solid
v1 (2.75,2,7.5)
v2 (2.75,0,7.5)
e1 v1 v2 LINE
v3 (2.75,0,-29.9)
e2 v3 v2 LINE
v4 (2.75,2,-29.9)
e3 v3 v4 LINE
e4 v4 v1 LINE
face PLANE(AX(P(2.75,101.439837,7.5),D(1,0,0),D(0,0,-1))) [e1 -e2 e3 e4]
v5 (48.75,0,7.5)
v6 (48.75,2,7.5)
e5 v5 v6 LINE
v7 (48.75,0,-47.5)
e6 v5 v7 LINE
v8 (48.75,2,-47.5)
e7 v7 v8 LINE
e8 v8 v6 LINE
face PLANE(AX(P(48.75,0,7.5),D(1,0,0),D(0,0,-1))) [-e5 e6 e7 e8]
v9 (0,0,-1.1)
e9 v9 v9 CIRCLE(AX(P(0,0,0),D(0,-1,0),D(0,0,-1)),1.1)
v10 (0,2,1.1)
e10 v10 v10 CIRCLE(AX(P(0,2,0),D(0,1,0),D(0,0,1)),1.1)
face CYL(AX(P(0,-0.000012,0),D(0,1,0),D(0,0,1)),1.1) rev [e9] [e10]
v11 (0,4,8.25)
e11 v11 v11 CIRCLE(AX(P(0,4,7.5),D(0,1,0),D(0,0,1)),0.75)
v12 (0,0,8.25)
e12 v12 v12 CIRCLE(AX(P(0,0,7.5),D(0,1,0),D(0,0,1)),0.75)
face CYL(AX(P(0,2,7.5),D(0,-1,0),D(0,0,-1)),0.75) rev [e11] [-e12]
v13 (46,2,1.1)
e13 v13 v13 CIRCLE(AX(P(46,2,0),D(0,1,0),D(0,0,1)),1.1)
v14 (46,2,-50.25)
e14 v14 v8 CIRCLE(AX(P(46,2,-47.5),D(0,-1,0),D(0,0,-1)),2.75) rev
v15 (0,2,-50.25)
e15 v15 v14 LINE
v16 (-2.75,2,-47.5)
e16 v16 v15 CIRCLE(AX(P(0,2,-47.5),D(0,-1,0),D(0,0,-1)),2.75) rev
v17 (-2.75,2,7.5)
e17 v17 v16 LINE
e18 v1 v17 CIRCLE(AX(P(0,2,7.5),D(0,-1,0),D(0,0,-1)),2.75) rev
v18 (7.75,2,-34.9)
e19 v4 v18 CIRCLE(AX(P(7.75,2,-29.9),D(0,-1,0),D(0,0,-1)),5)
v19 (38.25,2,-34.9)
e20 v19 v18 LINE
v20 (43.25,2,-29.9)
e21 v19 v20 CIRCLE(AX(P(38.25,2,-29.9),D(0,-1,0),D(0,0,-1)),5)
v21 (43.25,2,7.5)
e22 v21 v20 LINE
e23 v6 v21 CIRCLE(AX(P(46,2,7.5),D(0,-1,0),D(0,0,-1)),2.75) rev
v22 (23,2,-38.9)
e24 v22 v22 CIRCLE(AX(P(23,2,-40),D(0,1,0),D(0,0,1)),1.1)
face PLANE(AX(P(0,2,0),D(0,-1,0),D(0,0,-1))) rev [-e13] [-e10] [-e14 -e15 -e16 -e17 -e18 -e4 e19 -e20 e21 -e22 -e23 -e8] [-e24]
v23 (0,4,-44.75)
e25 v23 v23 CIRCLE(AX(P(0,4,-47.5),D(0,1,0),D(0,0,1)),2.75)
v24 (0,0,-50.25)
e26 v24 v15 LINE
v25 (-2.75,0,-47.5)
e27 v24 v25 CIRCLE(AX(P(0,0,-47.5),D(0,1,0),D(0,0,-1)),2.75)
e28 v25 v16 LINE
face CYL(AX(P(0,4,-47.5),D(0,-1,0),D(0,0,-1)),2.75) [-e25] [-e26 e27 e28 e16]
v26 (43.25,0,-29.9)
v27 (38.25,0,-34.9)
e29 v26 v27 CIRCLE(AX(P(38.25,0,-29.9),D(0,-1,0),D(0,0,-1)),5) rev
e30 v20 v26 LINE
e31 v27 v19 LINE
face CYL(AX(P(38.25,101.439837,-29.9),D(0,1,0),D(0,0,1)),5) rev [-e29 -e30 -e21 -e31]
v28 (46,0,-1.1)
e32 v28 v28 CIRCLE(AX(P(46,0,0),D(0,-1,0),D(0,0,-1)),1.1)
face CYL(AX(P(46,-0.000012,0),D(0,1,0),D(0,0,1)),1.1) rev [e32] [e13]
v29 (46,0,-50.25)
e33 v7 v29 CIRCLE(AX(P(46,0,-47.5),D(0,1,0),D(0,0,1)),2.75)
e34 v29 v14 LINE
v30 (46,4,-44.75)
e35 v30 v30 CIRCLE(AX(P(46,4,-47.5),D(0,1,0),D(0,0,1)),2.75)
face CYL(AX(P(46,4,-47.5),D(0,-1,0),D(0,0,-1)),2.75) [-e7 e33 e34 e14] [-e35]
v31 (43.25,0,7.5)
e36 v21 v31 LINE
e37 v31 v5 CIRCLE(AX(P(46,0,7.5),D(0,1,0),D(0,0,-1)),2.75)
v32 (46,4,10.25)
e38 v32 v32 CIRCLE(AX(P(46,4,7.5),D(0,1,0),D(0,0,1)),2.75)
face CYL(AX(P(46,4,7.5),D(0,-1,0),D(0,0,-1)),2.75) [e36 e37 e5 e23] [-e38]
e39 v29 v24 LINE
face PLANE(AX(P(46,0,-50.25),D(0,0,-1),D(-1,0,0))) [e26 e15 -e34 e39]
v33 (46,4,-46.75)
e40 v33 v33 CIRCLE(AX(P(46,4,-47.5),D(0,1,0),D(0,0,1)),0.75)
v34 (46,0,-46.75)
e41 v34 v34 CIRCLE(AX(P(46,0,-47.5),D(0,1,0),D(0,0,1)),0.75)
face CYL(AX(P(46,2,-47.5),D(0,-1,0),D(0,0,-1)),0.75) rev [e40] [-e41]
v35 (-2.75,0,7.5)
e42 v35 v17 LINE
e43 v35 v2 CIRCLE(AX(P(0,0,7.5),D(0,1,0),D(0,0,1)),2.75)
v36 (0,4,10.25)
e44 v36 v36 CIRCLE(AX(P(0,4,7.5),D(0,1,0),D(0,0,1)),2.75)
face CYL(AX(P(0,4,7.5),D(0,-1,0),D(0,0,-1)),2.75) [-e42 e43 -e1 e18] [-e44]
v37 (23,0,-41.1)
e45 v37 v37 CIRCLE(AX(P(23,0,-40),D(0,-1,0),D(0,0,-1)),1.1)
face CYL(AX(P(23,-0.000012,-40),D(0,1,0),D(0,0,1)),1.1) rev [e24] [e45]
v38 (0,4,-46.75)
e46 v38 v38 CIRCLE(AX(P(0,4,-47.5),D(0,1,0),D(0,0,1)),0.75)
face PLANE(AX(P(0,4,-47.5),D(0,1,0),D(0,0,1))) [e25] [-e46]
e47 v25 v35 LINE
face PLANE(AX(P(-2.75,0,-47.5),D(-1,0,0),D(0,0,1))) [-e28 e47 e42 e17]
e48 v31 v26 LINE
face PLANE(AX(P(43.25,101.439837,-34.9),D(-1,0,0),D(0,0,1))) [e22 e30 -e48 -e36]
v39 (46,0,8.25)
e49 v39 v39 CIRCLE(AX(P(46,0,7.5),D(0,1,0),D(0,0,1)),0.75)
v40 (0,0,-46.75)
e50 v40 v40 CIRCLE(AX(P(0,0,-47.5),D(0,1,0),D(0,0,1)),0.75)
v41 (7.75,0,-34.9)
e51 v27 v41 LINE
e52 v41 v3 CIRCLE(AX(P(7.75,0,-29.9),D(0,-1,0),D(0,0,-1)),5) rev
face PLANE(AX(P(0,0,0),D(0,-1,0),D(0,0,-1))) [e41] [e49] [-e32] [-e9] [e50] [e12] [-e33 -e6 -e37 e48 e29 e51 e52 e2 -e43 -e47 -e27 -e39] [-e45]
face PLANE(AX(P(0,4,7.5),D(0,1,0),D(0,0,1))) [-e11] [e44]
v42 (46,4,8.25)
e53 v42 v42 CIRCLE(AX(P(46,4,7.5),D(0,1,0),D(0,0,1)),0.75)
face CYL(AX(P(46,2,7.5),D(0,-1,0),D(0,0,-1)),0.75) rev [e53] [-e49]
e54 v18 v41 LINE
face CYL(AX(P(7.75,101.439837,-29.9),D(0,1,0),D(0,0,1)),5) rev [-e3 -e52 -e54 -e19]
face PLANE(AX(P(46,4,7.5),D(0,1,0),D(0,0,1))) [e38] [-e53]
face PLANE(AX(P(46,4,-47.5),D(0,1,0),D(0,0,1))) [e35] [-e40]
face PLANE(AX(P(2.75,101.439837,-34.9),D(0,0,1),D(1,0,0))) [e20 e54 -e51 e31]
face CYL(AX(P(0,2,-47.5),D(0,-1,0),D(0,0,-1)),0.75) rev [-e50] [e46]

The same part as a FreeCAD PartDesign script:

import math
import FreeCAD as App
import Part
import Sketcher
from FreeCAD import Vector
Q = App.Units.Quantity


def edges_at(feature, points):
    """Names of the edges that pass closest to the given points."""
    edges = feature.Shape.Edges
    near = lambda p: min(range(len(edges)), key=lambda i: edges[i].distToShape(Part.Vertex(*p))[0])
    return sorted({f"Edge{near(p) + 1}" for p in points})


def add_polygon(sketch, points):
    """Adds a closed chain of lines whose ends are joined by coincident constraints."""
    first, n = sketch.GeometryCount, len(points)
    for a, b in zip(points, points[1:] + points[:1]):
        sketch.addGeometry(Part.LineSegment(App.Vector(*a, 0), App.Vector(*b, 0)), False)
    for i in range(n):
        sketch.addConstraint(Sketcher.Constraint("Coincident", first + i, 2, first + (i + 1) % n, 1))

doc = App.newDocument("Part")
body = doc.addObject("PartDesign::Body", "Body")

# Sketch on XZ plane
sketch1 = body.newObject("Sketcher::SketchObject", "Sketch")
sketch1.AttachmentSupport = (doc.getObject("XZ_Plane"), [""])
sketch1.MapMode = "FlatFace"
add_polygon(sketch1, [(-4, -51.5), (-4, 11.5), (50, 11.5), (50, -51.5)])  # lines 0-3
sketch1.addGeometry(Part.Circle(Vector(0, 7.5, 0), Vector(0, 0, 1), 0.8), False)  # 4
sketch1.addGeometry(Part.Circle(Vector(46, 7.5, 0), Vector(0, 0, 1), 0.8), False)  # 5
sketch1.addGeometry(Part.Circle(Vector(0, -47.5, 0), Vector(0, 0, 1), 0.8), False)  # 6
sketch1.addGeometry(Part.Circle(Vector(46, -47.5, 0), Vector(0, 0, 1), 0.8), False)  # 7
sketch1.addConstraint([
    Sketcher.Constraint("Vertical", 0),
    Sketcher.Constraint("Horizontal", 1),
    Sketcher.Constraint("Vertical", 2),
    Sketcher.Constraint("Horizontal", 3),
    Sketcher.Constraint("Equal", 4, 5),
    Sketcher.Constraint("Equal", 5, 6),
    Sketcher.Constraint("Equal", 6, 7),
    Sketcher.Constraint("PointOnObject", 4, 3, -2),
    Sketcher.Constraint("PointOnObject", 6, 3, -2),
    Sketcher.Constraint("Horizontal", 4, 3, 5, 3),
    Sketcher.Constraint("Horizontal", 6, 3, 7, 3),
    Sketcher.Constraint("Vertical", 5, 3, 7, 3),
    Sketcher.Constraint("Diameter", 4, Q("1.5 mm")),
    Sketcher.Constraint("DistanceX", 1, 1, 1, 2, Q("54 mm")),
    Sketcher.Constraint("DistanceY", 0, 1, 0, 2, Q("63 mm")),
    Sketcher.Constraint("DistanceX", -1, 1, 5, 3, Q("46 mm")),
    Sketcher.Constraint("DistanceX", 0, 2, -1, 1, Q("4 mm")),
    Sketcher.Constraint("DistanceY", 6, 3, 4, 3, Q("55 mm")),
    Sketcher.Constraint("DistanceY", 4, 3, 0, 2, Q("4 mm")),
    Sketcher.Constraint("DistanceY", -1, 1, 4, 3, Q("7.5 mm")),
])
pad1 = body.newObject("PartDesign::Pad", "Pad")
pad1.Profile = sketch1
pad1.Length = 2
pad1.Reversed = True

# Sketch on XZ plane
sketch2 = body.newObject("Sketcher::SketchObject", "Sketch001")
sketch2.AttachmentSupport = (doc.getObject("XZ_Plane"), [""])
sketch2.MapMode = "FlatFace"
sketch2.addGeometry([
    Part.Circle(Vector(0, 0, 0), Vector(0, 0, 1), 1.1),
    Part.Circle(Vector(46, 0, 0), Vector(0, 0, 1), 1.1),
    Part.Circle(Vector(23, -40, 0), Vector(0, 0, 1), 1.1),
], False)
sketch2.addConstraint([
    Sketcher.Constraint("Coincident", 0, 3, -1, 1),
    Sketcher.Constraint("Equal", 0, 1),
    Sketcher.Constraint("Equal", 1, 2),
    Sketcher.Constraint("PointOnObject", 1, 3, -1),
    Sketcher.Constraint("Diameter", 0, Q("2.2 mm")),
    Sketcher.Constraint("DistanceX", -1, 1, 1, 3, Q("46 mm")),
    Sketcher.Constraint("DistanceX", -1, 1, 2, 3, Q("23 mm")),
    Sketcher.Constraint("DistanceY", 2, 3, -1, 1, Q("40 mm")),
])
pocket1 = body.newObject("PartDesign::Pocket", "Pocket")
pocket1.Profile = sketch2
pocket1.Type = "ThroughAll"
pocket1.Midplane = True

# Sketch on XZ plane
sketch3 = body.newObject("Sketcher::SketchObject", "Sketch002")
sketch3.AttachmentSupport = (doc.getObject("XZ_Plane"), [""])
sketch3.MapMode = "FlatFace"
sketch3.AttachmentOffset = App.Placement(Vector(0, 0, -2), App.Rotation())
sketch3.addGeometry([
    Part.Circle(Vector(0, 7.5, 0), Vector(0, 0, 1), 2.8),  # 0
    Part.Circle(Vector(0, 7.5, 0), Vector(0, 0, 1), 0.8),  # 1
    Part.Circle(Vector(46, 7.5, 0), Vector(0, 0, 1), 2.8),  # 2
    Part.Circle(Vector(46, 7.5, 0), Vector(0, 0, 1), 0.8),  # 3
    Part.Circle(Vector(46, -47.5, 0), Vector(0, 0, 1), 2.8),  # 4
    Part.Circle(Vector(46, -47.5, 0), Vector(0, 0, 1), 0.8),  # 5
    Part.Circle(Vector(0, -47.5, 0), Vector(0, 0, 1), 2.8),  # 6
    Part.Circle(Vector(0, -47.5, 0), Vector(0, 0, 1), 0.8),  # 7
], False)
sketch3.addConstraint([
    Sketcher.Constraint("Coincident", 1, 3, 0, 3),
    Sketcher.Constraint("Coincident", 3, 3, 2, 3),
    Sketcher.Constraint("Coincident", 5, 3, 4, 3),
    Sketcher.Constraint("Coincident", 7, 3, 6, 3),
    Sketcher.Constraint("Equal", 0, 2),
    Sketcher.Constraint("Equal", 1, 3),
    Sketcher.Constraint("Equal", 2, 4),
    Sketcher.Constraint("Equal", 3, 5),
    Sketcher.Constraint("Equal", 4, 6),
    Sketcher.Constraint("Equal", 5, 7),
    Sketcher.Constraint("PointOnObject", 0, 3, -2),
    Sketcher.Constraint("PointOnObject", 6, 3, -2),
    Sketcher.Constraint("Horizontal", 1, 3, 2, 3),
    Sketcher.Constraint("Horizontal", 5, 3, 6, 3),
    Sketcher.Constraint("Vertical", 3, 3, 4, 3),
    Sketcher.Constraint("Diameter", 0, Q("5.5 mm")),
    Sketcher.Constraint("Diameter", 1, Q("1.5 mm")),
    Sketcher.Constraint("DistanceX", -1, 1, 2, 3, Q("46 mm")),
    Sketcher.Constraint("DistanceY", 4, 3, 2, 3, Q("55 mm")),
    Sketcher.Constraint("DistanceY", -1, 1, 0, 3, Q("7.5 mm")),
])
pad2 = body.newObject("PartDesign::Pad", "Pad001")
pad2.Profile = sketch3
pad2.Length = 2
pad2.Reversed = True

# Sketch on XZ plane
sketch4 = body.newObject("Sketcher::SketchObject", "Sketch003")
sketch4.AttachmentSupport = (doc.getObject("XZ_Plane"), [""])
sketch4.MapMode = "FlatFace"
sketch4.AttachmentOffset = App.Placement(Vector(0, 0, -2), App.Rotation())
add_polygon(sketch4, [(-13.3, -60.8), (-13.3, 20.8), (59.3, 20.8), (59.3, -60.8)])  # lines 0-3
sketch4.addGeometry(Part.LineSegment(Vector(46, 10.2, 0), Vector(0, 10.2, 0)), False)  # 4
sketch4.addGeometry(Part.ArcOfCircle(Part.Circle(Vector(0, 7.5, 0), Vector(0, 0, 1), 2.8), math.radians(90), math.radians(180)), False)  # 5
sketch4.addGeometry(Part.LineSegment(Vector(-2.8, 7.5, 0), Vector(-2.8, -47.5, 0)), False)  # 6
sketch4.addGeometry(Part.ArcOfCircle(Part.Circle(Vector(0, -47.5, 0), Vector(0, 0, 1), 2.8), math.radians(-180), math.radians(-90)), False)  # 7
sketch4.addGeometry(Part.LineSegment(Vector(0, -50.2, 0), Vector(46, -50.2, 0)), False)  # 8
sketch4.addGeometry(Part.ArcOfCircle(Part.Circle(Vector(46, -47.5, 0), Vector(0, 0, 1), 2.8), math.radians(-90), math.radians(0)), False)  # 9
sketch4.addGeometry(Part.LineSegment(Vector(48.8, -47.5, 0), Vector(48.8, 7.5, 0)), False)  # 10
sketch4.addGeometry(Part.ArcOfCircle(Part.Circle(Vector(46, 7.5, 0), Vector(0, 0, 1), 2.8), math.radians(0), math.radians(90)), False)  # 11
sketch4.addConstraint([
    Sketcher.Constraint("Tangent", 4, 2, 5, 1),
    Sketcher.Constraint("Tangent", 5, 2, 6, 1),
    Sketcher.Constraint("Tangent", 6, 2, 7, 1),
    Sketcher.Constraint("Tangent", 7, 2, 8, 1),
    Sketcher.Constraint("Tangent", 8, 2, 9, 1),
    Sketcher.Constraint("Tangent", 9, 2, 10, 1),
    Sketcher.Constraint("Tangent", 10, 2, 11, 1),
    Sketcher.Constraint("Tangent", 11, 2, 4, 1),
    Sketcher.Constraint("Vertical", 0),
    Sketcher.Constraint("Horizontal", 1),
    Sketcher.Constraint("Vertical", 2),
    Sketcher.Constraint("Horizontal", 3),
    Sketcher.Constraint("Horizontal", 4),
    Sketcher.Constraint("Vertical", 6),
    Sketcher.Constraint("Horizontal", 8),
    Sketcher.Constraint("Vertical", 10),
    Sketcher.Constraint("Equal", 5, 7),
    Sketcher.Constraint("Equal", 7, 9),
    Sketcher.Constraint("Equal", 9, 11),
    Sketcher.Constraint("PointOnObject", 5, 3, -2),
    Sketcher.Constraint("DistanceX", 4, 2, 4, 1, Q("46 mm")),
    Sketcher.Constraint("DistanceY", 6, 2, 6, 1, Q("55 mm")),
    Sketcher.Constraint("Radius", 5, Q("2.75 mm")),
    Sketcher.Constraint("DistanceY", -1, 1, 5, 3, Q("7.5 mm")),
    Sketcher.Constraint("DistanceX", 1, 1, 1, 2, Q("72.614 mm")),
    Sketcher.Constraint("DistanceY", 0, 1, 0, 2, Q("81.614 mm")),
    Sketcher.Constraint("DistanceX", 0, 2, -1, 1, Q("13.307 mm")),
    Sketcher.Constraint("DistanceY", -1, 1, 0, 2, Q("20.807 mm")),
])
pocket2 = body.newObject("PartDesign::Pocket", "Pocket001")
pocket2.Profile = sketch4
pocket2.Type = "ThroughAll"
pocket2.Midplane = True

# Sketch on XZ plane
sketch5 = body.newObject("Sketcher::SketchObject", "Sketch004")
sketch5.AttachmentSupport = (doc.getObject("XZ_Plane"), [""])
sketch5.MapMode = "FlatFace"
sketch5.AttachmentOffset = App.Placement(Vector(0, 0, -2), App.Rotation())
sketch5.addGeometry([
    Part.LineSegment(Vector(2.8, -34.9, 0), Vector(2.8, 7.5, 0)),  # 0
    Part.ArcOfCircle(Part.Circle(Vector(0, 7.5, 0), Vector(0, 0, 1), 2.8), math.radians(0), math.radians(90)),  # 1
    Part.LineSegment(Vector(0, 10.2, 0), Vector(46, 10.2, 0)),  # 2
    Part.ArcOfCircle(Part.Circle(Vector(46, 7.5, 0), Vector(0, 0, 1), 2.8), math.radians(90), math.radians(180)),  # 3
    Part.LineSegment(Vector(43.2, 7.5, 0), Vector(43.2, -34.9, 0)),  # 4
    Part.LineSegment(Vector(43.2, -34.9, 0), Vector(2.8, -34.9, 0)),  # 5
], False)
sketch5.addConstraint([
    Sketcher.Constraint("Tangent", 0, 2, 1, 1),
    Sketcher.Constraint("Tangent", 1, 2, 2, 1),
    Sketcher.Constraint("Tangent", 2, 2, 3, 1),
    Sketcher.Constraint("Tangent", 3, 2, 4, 1),
    Sketcher.Constraint("Coincident", 4, 2, 5, 1),
    Sketcher.Constraint("Coincident", 5, 2, 0, 1),
    Sketcher.Constraint("Vertical", 0),
    Sketcher.Constraint("Horizontal", 2),
    Sketcher.Constraint("Vertical", 4),
    Sketcher.Constraint("Horizontal", 5),
    Sketcher.Constraint("Equal", 1, 3),
    Sketcher.Constraint("PointOnObject", 1, 3, -2),
    Sketcher.Constraint("DistanceX", 2, 1, 2, 2, Q("46 mm")),
    Sketcher.Constraint("Radius", 1, Q("2.75 mm")),
    Sketcher.Constraint("DistanceY", 0, 1, 0, 2, Q("42.4 mm")),
    Sketcher.Constraint("DistanceY", -1, 1, 1, 3, Q("7.5 mm")),
])
pocket3 = body.newObject("PartDesign::Pocket", "Pocket002")
pocket3.Profile = sketch5
pocket3.Type = "ThroughAll"
pocket3.Midplane = True
doc.recompute()

fillet = body.newObject("PartDesign::Fillet", "Fillet")
fillet.Base = (pocket3, edges_at(pocket3, [(2.75, 1, -34.9), (43.25, 1, -34.9)]))
fillet.Radius = 5

doc.recompute()
